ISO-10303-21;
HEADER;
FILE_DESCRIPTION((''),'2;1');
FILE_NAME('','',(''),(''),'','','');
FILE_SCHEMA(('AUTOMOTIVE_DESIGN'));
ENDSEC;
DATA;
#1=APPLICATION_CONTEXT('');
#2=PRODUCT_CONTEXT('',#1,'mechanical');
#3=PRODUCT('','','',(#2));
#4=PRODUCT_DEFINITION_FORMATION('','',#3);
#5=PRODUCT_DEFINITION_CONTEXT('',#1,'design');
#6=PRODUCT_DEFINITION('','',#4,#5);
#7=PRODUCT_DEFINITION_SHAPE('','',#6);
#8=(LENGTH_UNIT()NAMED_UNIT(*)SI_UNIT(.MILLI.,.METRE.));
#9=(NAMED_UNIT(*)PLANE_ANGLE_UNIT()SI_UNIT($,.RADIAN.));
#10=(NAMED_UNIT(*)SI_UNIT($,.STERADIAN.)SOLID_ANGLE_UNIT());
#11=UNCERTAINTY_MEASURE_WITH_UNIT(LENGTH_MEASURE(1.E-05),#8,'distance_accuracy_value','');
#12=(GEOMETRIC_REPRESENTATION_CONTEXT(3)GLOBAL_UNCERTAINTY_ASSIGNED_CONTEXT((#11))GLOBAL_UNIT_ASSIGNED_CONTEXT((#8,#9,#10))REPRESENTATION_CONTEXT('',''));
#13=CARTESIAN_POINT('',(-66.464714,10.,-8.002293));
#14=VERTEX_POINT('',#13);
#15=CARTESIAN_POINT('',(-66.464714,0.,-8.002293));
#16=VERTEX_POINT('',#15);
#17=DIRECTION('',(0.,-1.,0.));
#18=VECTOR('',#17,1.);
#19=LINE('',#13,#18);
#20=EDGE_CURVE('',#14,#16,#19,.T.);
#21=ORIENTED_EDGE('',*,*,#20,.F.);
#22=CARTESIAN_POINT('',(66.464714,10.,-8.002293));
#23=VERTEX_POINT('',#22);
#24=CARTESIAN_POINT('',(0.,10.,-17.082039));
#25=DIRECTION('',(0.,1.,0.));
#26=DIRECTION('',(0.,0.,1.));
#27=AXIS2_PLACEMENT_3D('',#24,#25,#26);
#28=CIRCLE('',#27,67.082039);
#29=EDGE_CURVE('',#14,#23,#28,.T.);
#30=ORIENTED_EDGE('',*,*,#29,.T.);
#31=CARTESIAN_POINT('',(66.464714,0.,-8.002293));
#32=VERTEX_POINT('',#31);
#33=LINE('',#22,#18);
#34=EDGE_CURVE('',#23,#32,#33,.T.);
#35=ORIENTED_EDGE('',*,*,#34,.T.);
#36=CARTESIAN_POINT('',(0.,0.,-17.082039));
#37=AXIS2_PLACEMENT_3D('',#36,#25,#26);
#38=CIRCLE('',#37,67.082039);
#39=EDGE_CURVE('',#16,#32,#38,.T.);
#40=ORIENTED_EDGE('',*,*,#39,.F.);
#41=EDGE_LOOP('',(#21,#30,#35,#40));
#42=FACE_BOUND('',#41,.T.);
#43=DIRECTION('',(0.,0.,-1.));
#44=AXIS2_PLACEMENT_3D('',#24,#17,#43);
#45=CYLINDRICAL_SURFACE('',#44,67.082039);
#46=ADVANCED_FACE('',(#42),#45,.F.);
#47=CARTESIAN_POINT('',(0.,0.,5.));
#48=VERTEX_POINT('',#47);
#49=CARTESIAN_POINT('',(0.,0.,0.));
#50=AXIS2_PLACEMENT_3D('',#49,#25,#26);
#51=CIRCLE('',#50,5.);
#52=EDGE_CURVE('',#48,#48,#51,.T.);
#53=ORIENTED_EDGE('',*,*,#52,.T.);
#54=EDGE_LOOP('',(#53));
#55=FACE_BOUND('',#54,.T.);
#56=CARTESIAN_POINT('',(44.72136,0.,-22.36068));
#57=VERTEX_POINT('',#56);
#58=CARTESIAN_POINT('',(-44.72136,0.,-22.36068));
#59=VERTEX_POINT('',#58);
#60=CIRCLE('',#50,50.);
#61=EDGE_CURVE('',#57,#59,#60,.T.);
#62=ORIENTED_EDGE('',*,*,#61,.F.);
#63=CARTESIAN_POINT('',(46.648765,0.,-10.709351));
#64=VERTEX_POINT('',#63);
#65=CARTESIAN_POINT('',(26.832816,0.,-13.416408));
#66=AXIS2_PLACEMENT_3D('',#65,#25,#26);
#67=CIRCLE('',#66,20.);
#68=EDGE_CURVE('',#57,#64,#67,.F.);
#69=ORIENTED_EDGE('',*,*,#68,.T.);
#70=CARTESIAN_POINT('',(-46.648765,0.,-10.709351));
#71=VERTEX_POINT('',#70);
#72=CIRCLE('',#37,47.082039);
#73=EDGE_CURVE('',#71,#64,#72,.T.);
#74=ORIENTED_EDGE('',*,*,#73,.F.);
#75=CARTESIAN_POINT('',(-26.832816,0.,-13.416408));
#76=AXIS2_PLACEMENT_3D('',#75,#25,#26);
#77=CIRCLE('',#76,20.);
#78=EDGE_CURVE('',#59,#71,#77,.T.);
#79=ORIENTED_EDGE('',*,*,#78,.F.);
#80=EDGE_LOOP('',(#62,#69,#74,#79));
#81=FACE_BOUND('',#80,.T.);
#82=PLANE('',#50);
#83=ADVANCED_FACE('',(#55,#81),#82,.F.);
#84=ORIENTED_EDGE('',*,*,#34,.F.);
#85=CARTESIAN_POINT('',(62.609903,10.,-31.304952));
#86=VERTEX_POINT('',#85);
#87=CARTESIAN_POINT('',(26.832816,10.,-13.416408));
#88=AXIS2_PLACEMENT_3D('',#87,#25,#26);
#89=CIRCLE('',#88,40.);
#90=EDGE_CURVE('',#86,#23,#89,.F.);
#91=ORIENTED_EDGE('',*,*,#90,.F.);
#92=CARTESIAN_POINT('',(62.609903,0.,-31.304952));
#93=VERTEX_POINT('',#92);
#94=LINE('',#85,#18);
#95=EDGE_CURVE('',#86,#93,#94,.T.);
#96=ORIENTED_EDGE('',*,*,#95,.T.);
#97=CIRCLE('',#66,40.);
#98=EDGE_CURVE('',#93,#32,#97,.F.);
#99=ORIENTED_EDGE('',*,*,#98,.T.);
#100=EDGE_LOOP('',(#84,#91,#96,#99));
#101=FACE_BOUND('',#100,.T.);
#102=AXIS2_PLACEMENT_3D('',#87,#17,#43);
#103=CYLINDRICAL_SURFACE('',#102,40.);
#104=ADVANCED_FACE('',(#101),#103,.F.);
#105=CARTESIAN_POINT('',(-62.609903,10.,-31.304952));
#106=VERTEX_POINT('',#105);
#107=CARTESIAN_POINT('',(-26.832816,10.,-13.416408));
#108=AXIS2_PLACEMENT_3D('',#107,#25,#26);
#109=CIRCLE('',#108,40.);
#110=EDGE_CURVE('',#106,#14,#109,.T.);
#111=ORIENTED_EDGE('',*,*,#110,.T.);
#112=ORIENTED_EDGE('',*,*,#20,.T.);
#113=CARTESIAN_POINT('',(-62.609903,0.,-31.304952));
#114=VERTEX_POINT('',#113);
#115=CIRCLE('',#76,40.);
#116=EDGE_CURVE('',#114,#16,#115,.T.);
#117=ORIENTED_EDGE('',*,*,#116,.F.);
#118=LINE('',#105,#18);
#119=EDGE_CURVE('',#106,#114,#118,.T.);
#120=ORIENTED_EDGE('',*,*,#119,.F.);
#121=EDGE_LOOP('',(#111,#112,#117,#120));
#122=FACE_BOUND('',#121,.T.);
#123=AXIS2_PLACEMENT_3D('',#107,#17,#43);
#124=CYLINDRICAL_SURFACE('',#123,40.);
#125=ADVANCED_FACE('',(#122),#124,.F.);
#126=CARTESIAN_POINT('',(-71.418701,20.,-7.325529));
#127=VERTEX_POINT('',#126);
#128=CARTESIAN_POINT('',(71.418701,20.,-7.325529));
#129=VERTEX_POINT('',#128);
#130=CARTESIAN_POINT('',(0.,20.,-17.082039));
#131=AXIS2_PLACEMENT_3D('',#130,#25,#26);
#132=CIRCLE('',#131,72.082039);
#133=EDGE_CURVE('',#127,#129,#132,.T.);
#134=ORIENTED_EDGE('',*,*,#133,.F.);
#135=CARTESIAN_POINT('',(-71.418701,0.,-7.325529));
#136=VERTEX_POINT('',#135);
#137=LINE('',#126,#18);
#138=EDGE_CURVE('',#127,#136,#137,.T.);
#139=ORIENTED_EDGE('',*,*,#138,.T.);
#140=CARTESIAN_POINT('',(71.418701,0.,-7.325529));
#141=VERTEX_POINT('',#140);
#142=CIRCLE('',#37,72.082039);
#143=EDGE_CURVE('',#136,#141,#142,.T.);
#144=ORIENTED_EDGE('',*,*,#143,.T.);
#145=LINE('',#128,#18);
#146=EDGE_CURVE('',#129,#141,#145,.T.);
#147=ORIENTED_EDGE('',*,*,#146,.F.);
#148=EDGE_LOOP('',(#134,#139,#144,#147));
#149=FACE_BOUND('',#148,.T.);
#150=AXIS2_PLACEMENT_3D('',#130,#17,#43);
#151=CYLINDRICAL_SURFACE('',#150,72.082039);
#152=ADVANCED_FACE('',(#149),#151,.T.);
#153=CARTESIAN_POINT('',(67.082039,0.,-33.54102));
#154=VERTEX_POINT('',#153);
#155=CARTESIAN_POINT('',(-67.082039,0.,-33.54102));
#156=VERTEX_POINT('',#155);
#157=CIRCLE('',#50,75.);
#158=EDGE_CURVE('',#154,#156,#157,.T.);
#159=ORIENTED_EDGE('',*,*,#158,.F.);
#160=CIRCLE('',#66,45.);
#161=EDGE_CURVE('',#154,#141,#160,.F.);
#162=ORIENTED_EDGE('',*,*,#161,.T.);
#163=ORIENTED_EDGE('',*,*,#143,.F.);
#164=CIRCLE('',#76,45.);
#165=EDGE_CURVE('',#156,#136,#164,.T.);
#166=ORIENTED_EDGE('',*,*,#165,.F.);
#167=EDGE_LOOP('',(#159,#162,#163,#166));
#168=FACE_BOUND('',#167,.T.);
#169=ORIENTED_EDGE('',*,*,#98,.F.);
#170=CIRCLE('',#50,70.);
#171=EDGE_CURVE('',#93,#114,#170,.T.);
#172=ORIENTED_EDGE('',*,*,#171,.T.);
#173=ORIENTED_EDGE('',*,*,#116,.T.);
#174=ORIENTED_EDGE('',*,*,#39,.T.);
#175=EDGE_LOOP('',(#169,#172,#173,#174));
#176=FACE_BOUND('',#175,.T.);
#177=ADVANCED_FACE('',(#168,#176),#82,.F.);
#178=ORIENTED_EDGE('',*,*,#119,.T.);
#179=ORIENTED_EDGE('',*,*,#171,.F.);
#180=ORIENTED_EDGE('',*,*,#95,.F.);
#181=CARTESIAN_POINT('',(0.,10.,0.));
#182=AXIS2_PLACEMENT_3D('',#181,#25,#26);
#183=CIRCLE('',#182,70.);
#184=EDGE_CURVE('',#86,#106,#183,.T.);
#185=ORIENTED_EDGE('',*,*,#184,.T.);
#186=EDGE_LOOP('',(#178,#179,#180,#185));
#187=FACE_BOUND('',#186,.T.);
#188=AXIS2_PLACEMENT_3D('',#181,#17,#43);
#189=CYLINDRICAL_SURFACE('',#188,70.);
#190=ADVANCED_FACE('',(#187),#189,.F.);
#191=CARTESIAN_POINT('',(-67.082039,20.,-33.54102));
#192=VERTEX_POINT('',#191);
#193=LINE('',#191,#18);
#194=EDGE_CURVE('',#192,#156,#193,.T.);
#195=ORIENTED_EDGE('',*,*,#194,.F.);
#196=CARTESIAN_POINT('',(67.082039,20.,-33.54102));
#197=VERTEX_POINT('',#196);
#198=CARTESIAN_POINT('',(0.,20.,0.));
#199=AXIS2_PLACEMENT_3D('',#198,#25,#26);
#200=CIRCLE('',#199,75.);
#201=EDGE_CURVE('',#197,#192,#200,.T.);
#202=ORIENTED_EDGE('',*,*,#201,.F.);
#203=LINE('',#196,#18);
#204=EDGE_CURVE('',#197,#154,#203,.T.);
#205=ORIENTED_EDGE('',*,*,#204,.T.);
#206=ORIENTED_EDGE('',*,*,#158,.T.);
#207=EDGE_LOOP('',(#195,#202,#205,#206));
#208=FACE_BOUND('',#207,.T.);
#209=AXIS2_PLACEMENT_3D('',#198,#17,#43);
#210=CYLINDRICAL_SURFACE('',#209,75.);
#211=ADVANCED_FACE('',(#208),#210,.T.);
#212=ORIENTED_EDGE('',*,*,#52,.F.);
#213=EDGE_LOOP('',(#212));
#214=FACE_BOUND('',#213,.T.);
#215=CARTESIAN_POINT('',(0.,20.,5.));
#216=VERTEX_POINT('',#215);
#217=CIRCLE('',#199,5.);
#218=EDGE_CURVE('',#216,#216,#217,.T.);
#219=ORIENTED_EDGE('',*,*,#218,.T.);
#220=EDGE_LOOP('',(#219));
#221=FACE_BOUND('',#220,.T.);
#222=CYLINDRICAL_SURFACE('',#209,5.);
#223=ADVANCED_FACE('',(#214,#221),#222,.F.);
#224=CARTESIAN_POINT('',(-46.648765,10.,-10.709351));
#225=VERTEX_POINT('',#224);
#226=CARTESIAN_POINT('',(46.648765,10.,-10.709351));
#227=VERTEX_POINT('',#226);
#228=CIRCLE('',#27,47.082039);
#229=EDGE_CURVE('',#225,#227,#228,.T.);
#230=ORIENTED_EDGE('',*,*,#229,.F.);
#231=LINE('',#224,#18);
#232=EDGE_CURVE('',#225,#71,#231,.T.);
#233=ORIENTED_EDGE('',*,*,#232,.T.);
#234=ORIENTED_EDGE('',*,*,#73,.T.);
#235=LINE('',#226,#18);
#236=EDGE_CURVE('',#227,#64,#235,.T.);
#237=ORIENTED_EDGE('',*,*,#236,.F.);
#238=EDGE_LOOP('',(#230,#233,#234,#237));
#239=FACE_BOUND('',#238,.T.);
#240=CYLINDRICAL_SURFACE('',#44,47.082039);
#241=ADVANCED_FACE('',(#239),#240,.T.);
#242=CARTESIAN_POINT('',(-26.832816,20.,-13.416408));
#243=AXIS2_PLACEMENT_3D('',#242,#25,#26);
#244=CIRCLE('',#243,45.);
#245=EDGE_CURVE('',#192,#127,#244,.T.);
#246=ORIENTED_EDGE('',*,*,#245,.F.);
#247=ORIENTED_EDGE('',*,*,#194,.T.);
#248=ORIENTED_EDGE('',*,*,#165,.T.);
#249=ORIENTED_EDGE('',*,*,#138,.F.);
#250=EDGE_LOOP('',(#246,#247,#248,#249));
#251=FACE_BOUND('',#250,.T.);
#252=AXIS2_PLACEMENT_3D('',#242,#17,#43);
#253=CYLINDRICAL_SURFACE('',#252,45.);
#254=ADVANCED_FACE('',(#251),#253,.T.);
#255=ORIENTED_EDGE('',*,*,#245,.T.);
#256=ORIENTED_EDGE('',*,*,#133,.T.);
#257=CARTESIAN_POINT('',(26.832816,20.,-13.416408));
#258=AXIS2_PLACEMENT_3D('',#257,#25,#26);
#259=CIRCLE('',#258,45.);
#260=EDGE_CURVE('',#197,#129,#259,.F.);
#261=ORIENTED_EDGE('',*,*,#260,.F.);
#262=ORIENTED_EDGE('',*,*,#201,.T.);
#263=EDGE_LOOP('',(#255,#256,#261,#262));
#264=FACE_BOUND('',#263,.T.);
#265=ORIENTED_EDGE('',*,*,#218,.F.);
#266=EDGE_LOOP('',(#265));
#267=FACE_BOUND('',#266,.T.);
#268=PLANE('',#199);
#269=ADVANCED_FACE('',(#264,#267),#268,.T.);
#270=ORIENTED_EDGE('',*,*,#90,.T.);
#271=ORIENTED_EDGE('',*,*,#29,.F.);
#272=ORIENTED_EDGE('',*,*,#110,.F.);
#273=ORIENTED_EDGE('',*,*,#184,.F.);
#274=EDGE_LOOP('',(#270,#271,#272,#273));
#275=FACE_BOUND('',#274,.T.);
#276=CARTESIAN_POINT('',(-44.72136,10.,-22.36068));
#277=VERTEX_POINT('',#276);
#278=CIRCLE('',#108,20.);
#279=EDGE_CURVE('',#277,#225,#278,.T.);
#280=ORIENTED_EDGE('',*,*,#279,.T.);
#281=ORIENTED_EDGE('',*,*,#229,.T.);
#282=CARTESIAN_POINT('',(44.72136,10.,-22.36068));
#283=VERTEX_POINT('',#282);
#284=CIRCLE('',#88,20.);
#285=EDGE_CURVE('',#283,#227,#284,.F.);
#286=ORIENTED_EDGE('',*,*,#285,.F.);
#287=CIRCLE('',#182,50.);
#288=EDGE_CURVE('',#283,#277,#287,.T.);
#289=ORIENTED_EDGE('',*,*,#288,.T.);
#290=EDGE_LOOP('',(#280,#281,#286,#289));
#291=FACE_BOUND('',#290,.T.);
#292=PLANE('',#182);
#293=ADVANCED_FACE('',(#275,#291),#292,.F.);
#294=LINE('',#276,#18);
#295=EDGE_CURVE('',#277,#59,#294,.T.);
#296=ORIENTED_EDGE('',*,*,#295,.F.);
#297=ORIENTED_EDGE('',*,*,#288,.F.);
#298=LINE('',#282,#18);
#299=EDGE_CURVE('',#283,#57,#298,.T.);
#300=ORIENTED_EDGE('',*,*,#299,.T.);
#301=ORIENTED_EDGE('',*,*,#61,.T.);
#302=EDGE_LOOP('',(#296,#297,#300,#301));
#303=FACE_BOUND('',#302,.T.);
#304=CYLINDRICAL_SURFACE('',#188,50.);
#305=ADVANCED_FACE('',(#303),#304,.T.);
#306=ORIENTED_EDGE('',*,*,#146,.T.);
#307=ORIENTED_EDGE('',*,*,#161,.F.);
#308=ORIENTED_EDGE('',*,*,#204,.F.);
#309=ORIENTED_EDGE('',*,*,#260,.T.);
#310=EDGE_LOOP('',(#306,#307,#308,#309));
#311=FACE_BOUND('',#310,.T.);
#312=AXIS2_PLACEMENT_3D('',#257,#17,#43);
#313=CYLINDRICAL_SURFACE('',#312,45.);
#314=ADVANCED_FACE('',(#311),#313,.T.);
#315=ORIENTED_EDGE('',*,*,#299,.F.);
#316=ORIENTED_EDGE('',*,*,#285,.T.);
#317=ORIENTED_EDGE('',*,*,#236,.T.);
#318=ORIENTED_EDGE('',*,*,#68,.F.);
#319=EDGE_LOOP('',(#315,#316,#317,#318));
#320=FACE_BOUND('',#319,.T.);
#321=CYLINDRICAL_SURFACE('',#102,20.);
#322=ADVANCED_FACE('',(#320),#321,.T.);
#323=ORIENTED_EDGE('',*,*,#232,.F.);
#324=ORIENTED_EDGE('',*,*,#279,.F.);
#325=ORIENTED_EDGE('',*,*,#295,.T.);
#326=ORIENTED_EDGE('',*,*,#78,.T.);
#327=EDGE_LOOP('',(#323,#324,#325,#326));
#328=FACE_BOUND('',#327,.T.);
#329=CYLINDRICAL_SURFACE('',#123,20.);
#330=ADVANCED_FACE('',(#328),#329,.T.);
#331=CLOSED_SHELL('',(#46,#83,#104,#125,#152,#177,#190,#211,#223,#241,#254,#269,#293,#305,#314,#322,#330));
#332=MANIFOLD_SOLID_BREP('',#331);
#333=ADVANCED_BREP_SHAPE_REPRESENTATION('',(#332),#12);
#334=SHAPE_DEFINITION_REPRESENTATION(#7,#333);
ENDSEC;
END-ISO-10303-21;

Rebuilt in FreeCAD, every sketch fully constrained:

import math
import FreeCAD as App
import Part
import Sketcher

doc = App.newDocument("Part")
body = doc.addObject("PartDesign::Body", "Body")

# Sketch on XZ plane
sketch1 = doc.addObject("Sketcher::SketchObject", "Sketch")
body.addObject(sketch1)
sketch1.AttachmentSupport = (doc.XZ_Plane, [""])
sketch1.MapMode = "FlatFace"
sketch1.addGeometry([
    Part.ArcOfCircle(Part.Circle(App.Vector(27, -13, 0), App.Vector(0, 0, 1), 45), math.radians(-27), math.radians(8)),  # 0
    Part.ArcOfCircle(Part.Circle(App.Vector(0, 0, 0), App.Vector(0, 0, 1), 75), math.radians(-153), math.radians(-27)),  # 1
    Part.ArcOfCircle(Part.Circle(App.Vector(-27, -13, 0), App.Vector(0, 0, 1), 45), math.radians(172), math.radians(207)),  # 2
    Part.ArcOfCircle(Part.Circle(App.Vector(0, -17, 0), App.Vector(0, 0, 1), 72), math.radians(8), math.radians(172)),  # 3
    Part.ArcOfCircle(Part.Circle(App.Vector(0, 0, 0), App.Vector(0, 0, 1), 5), math.radians(90), math.radians(270)),  # 4
    Part.ArcOfCircle(Part.Circle(App.Vector(0, 0, 0), App.Vector(0, 0, 1), 5), math.radians(-90), math.radians(0)),  # 5
    Part.ArcOfCircle(Part.Circle(App.Vector(0, 0, 0), App.Vector(0, 0, 1), 5), math.radians(0), math.radians(90)),  # 6
], False)
sketch1.addConstraint([
    Sketcher.Constraint("Tangent", 0, 1, 1, 2),
    Sketcher.Constraint("Tangent", 1, 1, 2, 2),
    Sketcher.Constraint("Tangent", 2, 1, 3, 2),
    Sketcher.Constraint("Tangent", 3, 1, 0, 2),
    Sketcher.Constraint("Tangent", 4, 2, 5, 1),
    Sketcher.Constraint("Tangent", 5, 2, 6, 1),
    Sketcher.Constraint("Tangent", 6, 2, 4, 1),
    Sketcher.Constraint("Coincident", 1, 3, -1, 1),
    Sketcher.Constraint("Coincident", 4, 3, -1, 1),
    Sketcher.Constraint("Equal", 0, 2),
    Sketcher.Constraint("PointOnObject", 3, 3, -2),
    Sketcher.Constraint("PointOnObject", 4, 2, -2),
    Sketcher.Constraint("PointOnObject", 5, 2, -1),
    Sketcher.Constraint("PointOnObject", 6, 2, -2),
    Sketcher.Constraint("Radius", 0, 45.0),
    Sketcher.Constraint("Radius", 1, 75.0),
    Sketcher.Constraint("Radius", 4, 5.0),
    Sketcher.Constraint("Radius", 3, 72.082039),
    Sketcher.Constraint("DistanceX", 2, 1, -1, 1, 71.418701),
])
pad1 = doc.addObject("PartDesign::Pad", "Pad")
body.addObject(pad1)
pad1.Profile = sketch1
pad1.Length = 20
pad1.Reversed = True

# Sketch on XZ plane
sketch2 = doc.addObject("Sketcher::SketchObject", "Sketch001")
body.addObject(sketch2)
sketch2.AttachmentSupport = (doc.XZ_Plane, [""])
sketch2.MapMode = "FlatFace"
sketch2.addGeometry([
    Part.ArcOfCircle(Part.Circle(App.Vector(27, -13, 0), App.Vector(0, 0, 1), 40), math.radians(-27), math.radians(8)),  # 0
    Part.ArcOfCircle(Part.Circle(App.Vector(0, 0, 0), App.Vector(0, 0, 1), 70), math.radians(-153), math.radians(-27)),  # 1
    Part.ArcOfCircle(Part.Circle(App.Vector(-27, -13, 0), App.Vector(0, 0, 1), 40), math.radians(172), math.radians(207)),  # 2
    Part.ArcOfCircle(Part.Circle(App.Vector(0, -17, 0), App.Vector(0, 0, 1), 67), math.radians(8), math.radians(172)),  # 3
    Part.ArcOfCircle(Part.Circle(App.Vector(0, 0, 0), App.Vector(0, 0, 1), 50), math.radians(-90), math.radians(-27)),  # 4
    Part.ArcOfCircle(Part.Circle(App.Vector(27, -13, 0), App.Vector(0, 0, 1), 20), math.radians(-27), math.radians(8)),  # 5
    Part.ArcOfCircle(Part.Circle(App.Vector(0, -17, 0), App.Vector(0, 0, 1), 47), math.radians(8), math.radians(90)),  # 6
    Part.ArcOfCircle(Part.Circle(App.Vector(0, -17, 0), App.Vector(0, 0, 1), 47), math.radians(90), math.radians(172)),  # 7
    Part.ArcOfCircle(Part.Circle(App.Vector(-27, -13, 0), App.Vector(0, 0, 1), 20), math.radians(172), math.radians(207)),  # 8
    Part.ArcOfCircle(Part.Circle(App.Vector(0, 0, 0), App.Vector(0, 0, 1), 50), math.radians(-153), math.radians(-90)),  # 9
], False)
sketch2.addConstraint([
    Sketcher.Constraint("Tangent", 0, 1, 1, 2),
    Sketcher.Constraint("Tangent", 1, 1, 2, 2),
    Sketcher.Constraint("Tangent", 2, 1, 3, 2),
    Sketcher.Constraint("Tangent", 3, 1, 0, 2),
    Sketcher.Constraint("Tangent", 4, 2, 5, 1),
    Sketcher.Constraint("Tangent", 5, 2, 6, 1),
    Sketcher.Constraint("Tangent", 6, 2, 7, 1),
    Sketcher.Constraint("Tangent", 7, 2, 8, 1),
    Sketcher.Constraint("Tangent", 8, 2, 9, 1),
    Sketcher.Constraint("Tangent", 9, 2, 4, 1),
    Sketcher.Constraint("Coincident", 1, 3, -1, 1),
    Sketcher.Constraint("Coincident", 4, 3, -1, 1),
    Sketcher.Constraint("Coincident", 5, 3, 0, 3),
    Sketcher.Constraint("Coincident", 6, 3, 3, 3),
    Sketcher.Constraint("Coincident", 8, 3, 2, 3),
    Sketcher.Constraint("Equal", 0, 2),
    Sketcher.Constraint("Equal", 6, 7),
    Sketcher.Constraint("PointOnObject", 3, 3, -2),
    Sketcher.Constraint("PointOnObject", 6, 2, -2),
    Sketcher.Constraint("PointOnObject", 9, 2, -2),
    Sketcher.Constraint("Radius", 0, 40.0),
    Sketcher.Constraint("Radius", 1, 70.0),
    Sketcher.Constraint("Radius", 4, 50.0),
    Sketcher.Constraint("DistanceY", -1, 1, 6, 2, 30.0),
    Sketcher.Constraint("Radius", 3, 67.082039),
])
pocket1 = doc.addObject("PartDesign::Pocket", "Pocket")
body.addObject(pocket1)
pocket1.Profile = sketch2
pocket1.Length = 10

doc.recompute()
